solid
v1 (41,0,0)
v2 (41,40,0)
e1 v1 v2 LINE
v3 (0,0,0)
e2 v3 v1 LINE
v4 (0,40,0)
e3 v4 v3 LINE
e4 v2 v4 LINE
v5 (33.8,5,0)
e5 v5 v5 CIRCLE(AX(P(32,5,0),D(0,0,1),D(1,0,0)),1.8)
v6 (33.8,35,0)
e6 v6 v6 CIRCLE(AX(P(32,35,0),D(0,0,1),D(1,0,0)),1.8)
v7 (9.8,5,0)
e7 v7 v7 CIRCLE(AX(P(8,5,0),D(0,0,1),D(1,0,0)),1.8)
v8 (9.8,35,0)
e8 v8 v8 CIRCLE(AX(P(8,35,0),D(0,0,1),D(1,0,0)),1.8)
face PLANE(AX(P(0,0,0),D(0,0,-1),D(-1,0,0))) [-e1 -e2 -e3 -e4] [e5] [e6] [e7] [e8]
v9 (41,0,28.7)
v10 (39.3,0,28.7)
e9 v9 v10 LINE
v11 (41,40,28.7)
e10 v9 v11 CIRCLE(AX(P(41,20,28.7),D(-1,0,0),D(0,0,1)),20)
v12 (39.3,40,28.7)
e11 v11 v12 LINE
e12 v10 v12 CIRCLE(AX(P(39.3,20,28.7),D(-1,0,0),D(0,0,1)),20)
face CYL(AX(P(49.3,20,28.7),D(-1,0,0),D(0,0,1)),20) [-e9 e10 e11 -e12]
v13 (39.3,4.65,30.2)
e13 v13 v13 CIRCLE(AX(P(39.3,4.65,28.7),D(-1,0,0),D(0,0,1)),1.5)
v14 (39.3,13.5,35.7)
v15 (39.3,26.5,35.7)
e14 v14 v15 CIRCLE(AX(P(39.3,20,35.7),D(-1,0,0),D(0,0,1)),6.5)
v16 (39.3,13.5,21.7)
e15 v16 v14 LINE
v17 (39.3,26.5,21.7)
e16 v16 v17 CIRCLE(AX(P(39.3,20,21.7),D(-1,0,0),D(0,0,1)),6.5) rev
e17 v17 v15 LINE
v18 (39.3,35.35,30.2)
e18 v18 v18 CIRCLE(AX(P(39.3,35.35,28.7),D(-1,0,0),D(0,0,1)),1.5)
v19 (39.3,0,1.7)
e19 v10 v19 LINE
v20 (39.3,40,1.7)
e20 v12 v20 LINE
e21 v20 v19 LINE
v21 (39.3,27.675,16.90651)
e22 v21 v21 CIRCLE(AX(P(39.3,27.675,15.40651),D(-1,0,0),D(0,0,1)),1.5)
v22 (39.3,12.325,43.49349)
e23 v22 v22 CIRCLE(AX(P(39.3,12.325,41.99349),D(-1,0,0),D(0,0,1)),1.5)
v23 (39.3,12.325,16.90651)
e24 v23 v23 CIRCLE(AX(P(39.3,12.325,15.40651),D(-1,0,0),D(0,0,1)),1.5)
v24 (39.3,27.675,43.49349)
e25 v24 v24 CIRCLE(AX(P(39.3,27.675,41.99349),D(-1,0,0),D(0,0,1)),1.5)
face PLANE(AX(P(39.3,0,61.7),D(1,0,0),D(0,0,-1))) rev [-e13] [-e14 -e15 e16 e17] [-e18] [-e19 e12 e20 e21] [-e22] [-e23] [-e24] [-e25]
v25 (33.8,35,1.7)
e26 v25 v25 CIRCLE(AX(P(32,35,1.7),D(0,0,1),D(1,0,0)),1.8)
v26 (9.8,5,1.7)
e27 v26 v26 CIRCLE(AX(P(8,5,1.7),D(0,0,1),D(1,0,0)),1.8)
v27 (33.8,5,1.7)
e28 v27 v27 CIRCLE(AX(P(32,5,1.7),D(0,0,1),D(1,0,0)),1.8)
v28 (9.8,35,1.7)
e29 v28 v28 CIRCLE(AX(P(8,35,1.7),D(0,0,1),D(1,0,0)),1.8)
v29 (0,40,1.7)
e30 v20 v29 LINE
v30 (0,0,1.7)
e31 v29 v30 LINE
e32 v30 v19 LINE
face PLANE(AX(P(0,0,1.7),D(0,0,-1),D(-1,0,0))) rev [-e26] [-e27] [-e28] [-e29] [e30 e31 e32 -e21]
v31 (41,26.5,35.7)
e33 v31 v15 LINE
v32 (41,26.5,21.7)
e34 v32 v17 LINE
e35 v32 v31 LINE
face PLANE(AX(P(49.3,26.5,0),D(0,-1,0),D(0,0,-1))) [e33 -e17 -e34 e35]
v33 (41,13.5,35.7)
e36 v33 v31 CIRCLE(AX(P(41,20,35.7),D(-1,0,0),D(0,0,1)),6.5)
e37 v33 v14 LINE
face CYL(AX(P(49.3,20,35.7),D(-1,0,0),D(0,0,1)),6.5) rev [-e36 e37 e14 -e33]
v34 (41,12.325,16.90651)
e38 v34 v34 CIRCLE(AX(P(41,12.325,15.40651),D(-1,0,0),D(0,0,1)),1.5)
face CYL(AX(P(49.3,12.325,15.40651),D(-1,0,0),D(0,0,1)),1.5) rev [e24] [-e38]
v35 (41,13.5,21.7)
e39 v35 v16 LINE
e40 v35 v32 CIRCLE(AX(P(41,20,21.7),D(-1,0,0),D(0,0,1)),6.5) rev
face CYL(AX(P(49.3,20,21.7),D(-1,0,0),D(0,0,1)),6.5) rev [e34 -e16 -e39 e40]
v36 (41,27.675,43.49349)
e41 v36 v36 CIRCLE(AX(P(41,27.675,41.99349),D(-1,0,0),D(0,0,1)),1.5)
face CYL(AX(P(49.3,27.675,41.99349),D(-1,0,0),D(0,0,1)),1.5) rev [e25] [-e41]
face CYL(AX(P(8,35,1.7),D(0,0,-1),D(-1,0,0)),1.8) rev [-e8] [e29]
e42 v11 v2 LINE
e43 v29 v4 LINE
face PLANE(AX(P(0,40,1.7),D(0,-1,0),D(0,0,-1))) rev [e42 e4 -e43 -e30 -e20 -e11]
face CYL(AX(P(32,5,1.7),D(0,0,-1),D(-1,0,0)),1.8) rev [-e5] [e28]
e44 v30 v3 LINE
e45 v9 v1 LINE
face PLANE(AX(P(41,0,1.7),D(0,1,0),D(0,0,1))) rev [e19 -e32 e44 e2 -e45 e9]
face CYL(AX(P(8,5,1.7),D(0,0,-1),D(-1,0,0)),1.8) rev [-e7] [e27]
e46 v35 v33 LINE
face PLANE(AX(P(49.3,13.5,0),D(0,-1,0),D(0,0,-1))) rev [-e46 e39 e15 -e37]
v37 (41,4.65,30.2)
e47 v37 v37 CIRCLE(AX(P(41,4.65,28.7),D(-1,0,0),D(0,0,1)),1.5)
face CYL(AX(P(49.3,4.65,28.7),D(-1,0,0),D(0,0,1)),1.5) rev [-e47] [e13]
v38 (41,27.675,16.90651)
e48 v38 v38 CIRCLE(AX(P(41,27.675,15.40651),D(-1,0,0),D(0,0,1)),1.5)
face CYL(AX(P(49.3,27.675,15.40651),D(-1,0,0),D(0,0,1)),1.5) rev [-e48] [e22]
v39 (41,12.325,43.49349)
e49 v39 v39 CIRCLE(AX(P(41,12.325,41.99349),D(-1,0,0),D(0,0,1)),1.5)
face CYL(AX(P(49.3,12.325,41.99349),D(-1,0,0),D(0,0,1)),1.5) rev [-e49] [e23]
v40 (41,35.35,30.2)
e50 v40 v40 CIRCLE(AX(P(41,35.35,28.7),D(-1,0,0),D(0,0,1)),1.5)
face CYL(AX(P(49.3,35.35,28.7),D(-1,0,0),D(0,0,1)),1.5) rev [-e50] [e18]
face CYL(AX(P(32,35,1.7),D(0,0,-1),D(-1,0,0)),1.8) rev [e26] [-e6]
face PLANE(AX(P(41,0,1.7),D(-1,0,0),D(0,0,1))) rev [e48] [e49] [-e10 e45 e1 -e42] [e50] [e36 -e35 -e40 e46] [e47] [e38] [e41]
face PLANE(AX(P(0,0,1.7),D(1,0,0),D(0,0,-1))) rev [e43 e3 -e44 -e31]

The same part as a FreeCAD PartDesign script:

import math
import FreeCAD as App
import Part
import Sketcher

V = App.Vector
Q = App.Units.Quantity


def add_polygon(sketch, points):
    """Adds a closed chain of lines whose ends are joined by coincident constraints."""
    first, n = sketch.GeometryCount, len(points)
    for a, b in zip(points, points[1:] + points[:1]):
        sketch.addGeometry(Part.LineSegment(App.Vector(*a, 0), App.Vector(*b, 0)), False)
    for i in range(n):
        sketch.addConstraint(Sketcher.Constraint("Coincident", first + i, 2, first + (i + 1) % n, 1))

doc = App.newDocument("Part")
body = doc.addObject("PartDesign::Body", "Body")

sketch1 = doc.addObject("Sketcher::SketchObject", "Sketch")
body.addObject(sketch1)
sketch1.AttachmentSupport = (doc.XY_Plane, [""])
sketch1.MapMode = "FlatFace"
add_polygon(sketch1, [(0, 0), (41, 0), (41, 40), (0, 40)])
sketch1.addGeometry(Part.Circle(V(8, 5, 0), V(0, 0, 1), 1.8), False)
sketch1.addGeometry(Part.Circle(V(32, 5, 0), V(0, 0, 1), 1.8), False)
sketch1.addGeometry(Part.Circle(V(8, 35, 0), V(0, 0, 1), 1.8), False)
sketch1.addGeometry(Part.Circle(V(32, 35, 0), V(0, 0, 1), 1.8), False)
sketch1.addConstraint([
    Sketcher.Constraint("Horizontal", 0),
    Sketcher.Constraint("Vertical", 1),
    Sketcher.Constraint("Horizontal", 2),
    Sketcher.Constraint("Vertical", 3),
    Sketcher.Constraint("Coincident", 3, 2, -1, 1),
    Sketcher.Constraint("Equal", 4, 5),
    Sketcher.Constraint("Equal", 5, 6),
    Sketcher.Constraint("Equal", 6, 7),
    Sketcher.Constraint("Horizontal", 4, 3, 5, 3),
    Sketcher.Constraint("Horizontal", 6, 3, 7, 3),
    Sketcher.Constraint("Vertical", 4, 3, 6, 3),
    Sketcher.Constraint("Vertical", 5, 3, 7, 3),
    Sketcher.Constraint("Diameter", 4, Q("3.6 mm")),
    Sketcher.Constraint("DistanceX", 0, 1, 0, 2, Q("41 mm")),
    Sketcher.Constraint("DistanceY", 1, 1, 1, 2, Q("40 mm")),
    Sketcher.Constraint("DistanceX", -1, 1, 4, 3, Q("8 mm")),
    Sketcher.Constraint("DistanceY", -1, 1, 4, 3, Q("5 mm")),
    Sketcher.Constraint("DistanceX", -1, 1, 5, 3, Q("32 mm")),
    Sketcher.Constraint("DistanceY", -1, 1, 6, 3, Q("35 mm")),
])
pad1 = doc.addObject("PartDesign::Pad", "Pad")
body.addObject(pad1)
pad1.Profile = sketch1
pad1.Length = 1.7

sketch2 = doc.addObject("Sketcher::SketchObject", "Sketch001")
body.addObject(sketch2)
sketch2.AttachmentSupport = (doc.XY_Plane, [""])
sketch2.MapMode = "FlatFace"
sketch2.AttachmentOffset = App.Placement(V(0, 0, 1.7), App.Rotation())
add_polygon(sketch2, [(39.3, 40), (39.3, 0), (41, 0), (41, 40)])
sketch2.addConstraint([
    Sketcher.Constraint("Vertical", 0),
    Sketcher.Constraint("Horizontal", 1),
    Sketcher.Constraint("Vertical", 2),
    Sketcher.Constraint("Horizontal", 3),
    Sketcher.Constraint("PointOnObject", 0, 2, -1),
    Sketcher.Constraint("DistanceY", 0, 2, 0, 1, Q("40 mm")),
    Sketcher.Constraint("DistanceX", 1, 1, 1, 2, Q("1.7 mm")),
    Sketcher.Constraint("DistanceX", -1, 1, 1, 2, Q("41 mm")),
])
pad2 = doc.addObject("PartDesign::Pad", "Pad001")
body.addObject(pad2)
pad2.Profile = sketch2
pad2.Length = 60

sketch3 = doc.addObject("Sketcher::SketchObject", "Sketch002")
body.addObject(sketch3)
sketch3.AttachmentSupport = (doc.YZ_Plane, [""])
sketch3.MapMode = "FlatFace"
sketch3.AttachmentOffset = App.Placement(V(0, 0, 39.3), App.Rotation())
sketch3.addGeometry([
    Part.LineSegment(V(40, 62, 0), V(40, 29, 0)),
    Part.ArcOfCircle(Part.Circle(V(20, 29, 0), V(0, 0, 1), 20), math.radians(0), math.radians(180)),
    Part.LineSegment(V(0, 29, 0), V(0, 62, 0)),
    Part.LineSegment(V(0, 62, 0), V(40, 62, 0)),
    Part.LineSegment(V(14, 22, 0), V(14, 36, 0)),
    Part.ArcOfCircle(Part.Circle(V(20, 36, 0), V(0, 0, 1), 6), math.radians(0), math.radians(180)),
    Part.LineSegment(V(26, 36, 0), V(26, 22, 0)),
    Part.ArcOfCircle(Part.Circle(V(20, 22, 0), V(0, 0, 1), 6), math.radians(180), math.radians(360)),
], False)
sketch3.addConstraint([
    Sketcher.Constraint("Tangent", 0, 2, 1, 1),
    Sketcher.Constraint("Tangent", 1, 2, 2, 1),
    Sketcher.Constraint("Coincident", 2, 2, 3, 1),
    Sketcher.Constraint("Coincident", 3, 2, 0, 1),
    Sketcher.Constraint("Tangent", 4, 2, 5, 2),
    Sketcher.Constraint("Tangent", 5, 1, 6, 1),
    Sketcher.Constraint("Tangent", 6, 2, 7, 2),
    Sketcher.Constraint("Tangent", 7, 1, 4, 1),
    Sketcher.Constraint("Vertical", 0),
    Sketcher.Constraint("Vertical", 2),
    Sketcher.Constraint("Horizontal", 3),
    Sketcher.Constraint("Vertical", 4),
    Sketcher.Constraint("Vertical", 6),
    Sketcher.Constraint("PointOnObject", 1, 2, -2),
    Sketcher.Constraint("Vertical", 1, 3, 5, 3),
    Sketcher.Constraint("Radius", 1, Q("20 mm")),
    Sketcher.Constraint("Radius", 5, Q("6.5 mm")),
    Sketcher.Constraint("DistanceY", 0, 2, 0, 1, Q("33 mm")),
    Sketcher.Constraint("DistanceY", 4, 1, 4, 2, Q("14 mm")),
    Sketcher.Constraint("DistanceY", 1, 3, 5, 3, Q("7 mm")),
    Sketcher.Constraint("DistanceY", -1, 1, 1, 3, Q("28.7 mm")),
])
pocket1 = doc.addObject("PartDesign::Pocket", "Pocket")
body.addObject(pocket1)
pocket1.Profile = sketch3
pocket1.Length = 10
pocket1.Reversed = True

sketch4 = doc.addObject("Sketcher::SketchObject", "Sketch003")
body.addObject(sketch4)
sketch4.AttachmentSupport = (doc.YZ_Plane, [""])
sketch4.MapMode = "FlatFace"
sketch4.AttachmentOffset = App.Placement(V(0, 0, 39.3), App.Rotation())
sketch4.addGeometry([
    Part.Circle(V(27.7, 15.4, 0), V(0, 0, 1), 1.5),
    Part.Circle(V(35.4, 28.7, 0), V(0, 0, 1), 1.5),
    Part.Circle(V(27.7, 42, 0), V(0, 0, 1), 1.5),
    Part.Circle(V(12.3, 42, 0), V(0, 0, 1), 1.5),
    Part.Circle(V(4.7, 28.7, 0), V(0, 0, 1), 1.5),
    Part.Circle(V(12.3, 15.4, 0), V(0, 0, 1), 1.5),
], False)
sketch4.addConstraint([
    Sketcher.Constraint("Equal", 0, 1),
    Sketcher.Constraint("Equal", 1, 2),
    Sketcher.Constraint("Equal", 2, 3),
    Sketcher.Constraint("Equal", 3, 4),
    Sketcher.Constraint("Equal", 4, 5),
    Sketcher.Constraint("Horizontal", 2, 3, 3, 3),
    Sketcher.Constraint("Horizontal", 1, 3, 4, 3),
    Sketcher.Constraint("Horizontal", 0, 3, 5, 3),
    Sketcher.Constraint("Vertical", 0, 3, 2, 3),
    Sketcher.Constraint("Vertical", 3, 3, 5, 3),
    Sketcher.Constraint("Diameter", 0, Q("3 mm")),
    Sketcher.Constraint("DistanceY", -1, 1, 1, 3, Q("28.7 mm")),
    Sketcher.Constraint("DistanceX", 4, 3, 1, 3, Q("30.7 mm")),
    Sketcher.Constraint("DistanceX", -1, 1, 1, 3, Q("35.35 mm")),
    Sketcher.Constraint("DistanceX", 3, 3, 2, 3, Q("15.35 mm")),
    Sketcher.Constraint("DistanceX", -1, 1, 0, 3, Q("27.675 mm")),
    Sketcher.Constraint("DistanceY", -1, 1, 0, 3, Q("15.40651 mm")),
    Sketcher.Constraint("DistanceY", -1, 1, 2, 3, Q("41.99349 mm")),
])
pocket2 = doc.addObject("PartDesign::Pocket", "Pocket001")
body.addObject(pocket2)
pocket2.Profile = sketch4
pocket2.Length = 10
pocket2.Reversed = True

doc.recompute()
